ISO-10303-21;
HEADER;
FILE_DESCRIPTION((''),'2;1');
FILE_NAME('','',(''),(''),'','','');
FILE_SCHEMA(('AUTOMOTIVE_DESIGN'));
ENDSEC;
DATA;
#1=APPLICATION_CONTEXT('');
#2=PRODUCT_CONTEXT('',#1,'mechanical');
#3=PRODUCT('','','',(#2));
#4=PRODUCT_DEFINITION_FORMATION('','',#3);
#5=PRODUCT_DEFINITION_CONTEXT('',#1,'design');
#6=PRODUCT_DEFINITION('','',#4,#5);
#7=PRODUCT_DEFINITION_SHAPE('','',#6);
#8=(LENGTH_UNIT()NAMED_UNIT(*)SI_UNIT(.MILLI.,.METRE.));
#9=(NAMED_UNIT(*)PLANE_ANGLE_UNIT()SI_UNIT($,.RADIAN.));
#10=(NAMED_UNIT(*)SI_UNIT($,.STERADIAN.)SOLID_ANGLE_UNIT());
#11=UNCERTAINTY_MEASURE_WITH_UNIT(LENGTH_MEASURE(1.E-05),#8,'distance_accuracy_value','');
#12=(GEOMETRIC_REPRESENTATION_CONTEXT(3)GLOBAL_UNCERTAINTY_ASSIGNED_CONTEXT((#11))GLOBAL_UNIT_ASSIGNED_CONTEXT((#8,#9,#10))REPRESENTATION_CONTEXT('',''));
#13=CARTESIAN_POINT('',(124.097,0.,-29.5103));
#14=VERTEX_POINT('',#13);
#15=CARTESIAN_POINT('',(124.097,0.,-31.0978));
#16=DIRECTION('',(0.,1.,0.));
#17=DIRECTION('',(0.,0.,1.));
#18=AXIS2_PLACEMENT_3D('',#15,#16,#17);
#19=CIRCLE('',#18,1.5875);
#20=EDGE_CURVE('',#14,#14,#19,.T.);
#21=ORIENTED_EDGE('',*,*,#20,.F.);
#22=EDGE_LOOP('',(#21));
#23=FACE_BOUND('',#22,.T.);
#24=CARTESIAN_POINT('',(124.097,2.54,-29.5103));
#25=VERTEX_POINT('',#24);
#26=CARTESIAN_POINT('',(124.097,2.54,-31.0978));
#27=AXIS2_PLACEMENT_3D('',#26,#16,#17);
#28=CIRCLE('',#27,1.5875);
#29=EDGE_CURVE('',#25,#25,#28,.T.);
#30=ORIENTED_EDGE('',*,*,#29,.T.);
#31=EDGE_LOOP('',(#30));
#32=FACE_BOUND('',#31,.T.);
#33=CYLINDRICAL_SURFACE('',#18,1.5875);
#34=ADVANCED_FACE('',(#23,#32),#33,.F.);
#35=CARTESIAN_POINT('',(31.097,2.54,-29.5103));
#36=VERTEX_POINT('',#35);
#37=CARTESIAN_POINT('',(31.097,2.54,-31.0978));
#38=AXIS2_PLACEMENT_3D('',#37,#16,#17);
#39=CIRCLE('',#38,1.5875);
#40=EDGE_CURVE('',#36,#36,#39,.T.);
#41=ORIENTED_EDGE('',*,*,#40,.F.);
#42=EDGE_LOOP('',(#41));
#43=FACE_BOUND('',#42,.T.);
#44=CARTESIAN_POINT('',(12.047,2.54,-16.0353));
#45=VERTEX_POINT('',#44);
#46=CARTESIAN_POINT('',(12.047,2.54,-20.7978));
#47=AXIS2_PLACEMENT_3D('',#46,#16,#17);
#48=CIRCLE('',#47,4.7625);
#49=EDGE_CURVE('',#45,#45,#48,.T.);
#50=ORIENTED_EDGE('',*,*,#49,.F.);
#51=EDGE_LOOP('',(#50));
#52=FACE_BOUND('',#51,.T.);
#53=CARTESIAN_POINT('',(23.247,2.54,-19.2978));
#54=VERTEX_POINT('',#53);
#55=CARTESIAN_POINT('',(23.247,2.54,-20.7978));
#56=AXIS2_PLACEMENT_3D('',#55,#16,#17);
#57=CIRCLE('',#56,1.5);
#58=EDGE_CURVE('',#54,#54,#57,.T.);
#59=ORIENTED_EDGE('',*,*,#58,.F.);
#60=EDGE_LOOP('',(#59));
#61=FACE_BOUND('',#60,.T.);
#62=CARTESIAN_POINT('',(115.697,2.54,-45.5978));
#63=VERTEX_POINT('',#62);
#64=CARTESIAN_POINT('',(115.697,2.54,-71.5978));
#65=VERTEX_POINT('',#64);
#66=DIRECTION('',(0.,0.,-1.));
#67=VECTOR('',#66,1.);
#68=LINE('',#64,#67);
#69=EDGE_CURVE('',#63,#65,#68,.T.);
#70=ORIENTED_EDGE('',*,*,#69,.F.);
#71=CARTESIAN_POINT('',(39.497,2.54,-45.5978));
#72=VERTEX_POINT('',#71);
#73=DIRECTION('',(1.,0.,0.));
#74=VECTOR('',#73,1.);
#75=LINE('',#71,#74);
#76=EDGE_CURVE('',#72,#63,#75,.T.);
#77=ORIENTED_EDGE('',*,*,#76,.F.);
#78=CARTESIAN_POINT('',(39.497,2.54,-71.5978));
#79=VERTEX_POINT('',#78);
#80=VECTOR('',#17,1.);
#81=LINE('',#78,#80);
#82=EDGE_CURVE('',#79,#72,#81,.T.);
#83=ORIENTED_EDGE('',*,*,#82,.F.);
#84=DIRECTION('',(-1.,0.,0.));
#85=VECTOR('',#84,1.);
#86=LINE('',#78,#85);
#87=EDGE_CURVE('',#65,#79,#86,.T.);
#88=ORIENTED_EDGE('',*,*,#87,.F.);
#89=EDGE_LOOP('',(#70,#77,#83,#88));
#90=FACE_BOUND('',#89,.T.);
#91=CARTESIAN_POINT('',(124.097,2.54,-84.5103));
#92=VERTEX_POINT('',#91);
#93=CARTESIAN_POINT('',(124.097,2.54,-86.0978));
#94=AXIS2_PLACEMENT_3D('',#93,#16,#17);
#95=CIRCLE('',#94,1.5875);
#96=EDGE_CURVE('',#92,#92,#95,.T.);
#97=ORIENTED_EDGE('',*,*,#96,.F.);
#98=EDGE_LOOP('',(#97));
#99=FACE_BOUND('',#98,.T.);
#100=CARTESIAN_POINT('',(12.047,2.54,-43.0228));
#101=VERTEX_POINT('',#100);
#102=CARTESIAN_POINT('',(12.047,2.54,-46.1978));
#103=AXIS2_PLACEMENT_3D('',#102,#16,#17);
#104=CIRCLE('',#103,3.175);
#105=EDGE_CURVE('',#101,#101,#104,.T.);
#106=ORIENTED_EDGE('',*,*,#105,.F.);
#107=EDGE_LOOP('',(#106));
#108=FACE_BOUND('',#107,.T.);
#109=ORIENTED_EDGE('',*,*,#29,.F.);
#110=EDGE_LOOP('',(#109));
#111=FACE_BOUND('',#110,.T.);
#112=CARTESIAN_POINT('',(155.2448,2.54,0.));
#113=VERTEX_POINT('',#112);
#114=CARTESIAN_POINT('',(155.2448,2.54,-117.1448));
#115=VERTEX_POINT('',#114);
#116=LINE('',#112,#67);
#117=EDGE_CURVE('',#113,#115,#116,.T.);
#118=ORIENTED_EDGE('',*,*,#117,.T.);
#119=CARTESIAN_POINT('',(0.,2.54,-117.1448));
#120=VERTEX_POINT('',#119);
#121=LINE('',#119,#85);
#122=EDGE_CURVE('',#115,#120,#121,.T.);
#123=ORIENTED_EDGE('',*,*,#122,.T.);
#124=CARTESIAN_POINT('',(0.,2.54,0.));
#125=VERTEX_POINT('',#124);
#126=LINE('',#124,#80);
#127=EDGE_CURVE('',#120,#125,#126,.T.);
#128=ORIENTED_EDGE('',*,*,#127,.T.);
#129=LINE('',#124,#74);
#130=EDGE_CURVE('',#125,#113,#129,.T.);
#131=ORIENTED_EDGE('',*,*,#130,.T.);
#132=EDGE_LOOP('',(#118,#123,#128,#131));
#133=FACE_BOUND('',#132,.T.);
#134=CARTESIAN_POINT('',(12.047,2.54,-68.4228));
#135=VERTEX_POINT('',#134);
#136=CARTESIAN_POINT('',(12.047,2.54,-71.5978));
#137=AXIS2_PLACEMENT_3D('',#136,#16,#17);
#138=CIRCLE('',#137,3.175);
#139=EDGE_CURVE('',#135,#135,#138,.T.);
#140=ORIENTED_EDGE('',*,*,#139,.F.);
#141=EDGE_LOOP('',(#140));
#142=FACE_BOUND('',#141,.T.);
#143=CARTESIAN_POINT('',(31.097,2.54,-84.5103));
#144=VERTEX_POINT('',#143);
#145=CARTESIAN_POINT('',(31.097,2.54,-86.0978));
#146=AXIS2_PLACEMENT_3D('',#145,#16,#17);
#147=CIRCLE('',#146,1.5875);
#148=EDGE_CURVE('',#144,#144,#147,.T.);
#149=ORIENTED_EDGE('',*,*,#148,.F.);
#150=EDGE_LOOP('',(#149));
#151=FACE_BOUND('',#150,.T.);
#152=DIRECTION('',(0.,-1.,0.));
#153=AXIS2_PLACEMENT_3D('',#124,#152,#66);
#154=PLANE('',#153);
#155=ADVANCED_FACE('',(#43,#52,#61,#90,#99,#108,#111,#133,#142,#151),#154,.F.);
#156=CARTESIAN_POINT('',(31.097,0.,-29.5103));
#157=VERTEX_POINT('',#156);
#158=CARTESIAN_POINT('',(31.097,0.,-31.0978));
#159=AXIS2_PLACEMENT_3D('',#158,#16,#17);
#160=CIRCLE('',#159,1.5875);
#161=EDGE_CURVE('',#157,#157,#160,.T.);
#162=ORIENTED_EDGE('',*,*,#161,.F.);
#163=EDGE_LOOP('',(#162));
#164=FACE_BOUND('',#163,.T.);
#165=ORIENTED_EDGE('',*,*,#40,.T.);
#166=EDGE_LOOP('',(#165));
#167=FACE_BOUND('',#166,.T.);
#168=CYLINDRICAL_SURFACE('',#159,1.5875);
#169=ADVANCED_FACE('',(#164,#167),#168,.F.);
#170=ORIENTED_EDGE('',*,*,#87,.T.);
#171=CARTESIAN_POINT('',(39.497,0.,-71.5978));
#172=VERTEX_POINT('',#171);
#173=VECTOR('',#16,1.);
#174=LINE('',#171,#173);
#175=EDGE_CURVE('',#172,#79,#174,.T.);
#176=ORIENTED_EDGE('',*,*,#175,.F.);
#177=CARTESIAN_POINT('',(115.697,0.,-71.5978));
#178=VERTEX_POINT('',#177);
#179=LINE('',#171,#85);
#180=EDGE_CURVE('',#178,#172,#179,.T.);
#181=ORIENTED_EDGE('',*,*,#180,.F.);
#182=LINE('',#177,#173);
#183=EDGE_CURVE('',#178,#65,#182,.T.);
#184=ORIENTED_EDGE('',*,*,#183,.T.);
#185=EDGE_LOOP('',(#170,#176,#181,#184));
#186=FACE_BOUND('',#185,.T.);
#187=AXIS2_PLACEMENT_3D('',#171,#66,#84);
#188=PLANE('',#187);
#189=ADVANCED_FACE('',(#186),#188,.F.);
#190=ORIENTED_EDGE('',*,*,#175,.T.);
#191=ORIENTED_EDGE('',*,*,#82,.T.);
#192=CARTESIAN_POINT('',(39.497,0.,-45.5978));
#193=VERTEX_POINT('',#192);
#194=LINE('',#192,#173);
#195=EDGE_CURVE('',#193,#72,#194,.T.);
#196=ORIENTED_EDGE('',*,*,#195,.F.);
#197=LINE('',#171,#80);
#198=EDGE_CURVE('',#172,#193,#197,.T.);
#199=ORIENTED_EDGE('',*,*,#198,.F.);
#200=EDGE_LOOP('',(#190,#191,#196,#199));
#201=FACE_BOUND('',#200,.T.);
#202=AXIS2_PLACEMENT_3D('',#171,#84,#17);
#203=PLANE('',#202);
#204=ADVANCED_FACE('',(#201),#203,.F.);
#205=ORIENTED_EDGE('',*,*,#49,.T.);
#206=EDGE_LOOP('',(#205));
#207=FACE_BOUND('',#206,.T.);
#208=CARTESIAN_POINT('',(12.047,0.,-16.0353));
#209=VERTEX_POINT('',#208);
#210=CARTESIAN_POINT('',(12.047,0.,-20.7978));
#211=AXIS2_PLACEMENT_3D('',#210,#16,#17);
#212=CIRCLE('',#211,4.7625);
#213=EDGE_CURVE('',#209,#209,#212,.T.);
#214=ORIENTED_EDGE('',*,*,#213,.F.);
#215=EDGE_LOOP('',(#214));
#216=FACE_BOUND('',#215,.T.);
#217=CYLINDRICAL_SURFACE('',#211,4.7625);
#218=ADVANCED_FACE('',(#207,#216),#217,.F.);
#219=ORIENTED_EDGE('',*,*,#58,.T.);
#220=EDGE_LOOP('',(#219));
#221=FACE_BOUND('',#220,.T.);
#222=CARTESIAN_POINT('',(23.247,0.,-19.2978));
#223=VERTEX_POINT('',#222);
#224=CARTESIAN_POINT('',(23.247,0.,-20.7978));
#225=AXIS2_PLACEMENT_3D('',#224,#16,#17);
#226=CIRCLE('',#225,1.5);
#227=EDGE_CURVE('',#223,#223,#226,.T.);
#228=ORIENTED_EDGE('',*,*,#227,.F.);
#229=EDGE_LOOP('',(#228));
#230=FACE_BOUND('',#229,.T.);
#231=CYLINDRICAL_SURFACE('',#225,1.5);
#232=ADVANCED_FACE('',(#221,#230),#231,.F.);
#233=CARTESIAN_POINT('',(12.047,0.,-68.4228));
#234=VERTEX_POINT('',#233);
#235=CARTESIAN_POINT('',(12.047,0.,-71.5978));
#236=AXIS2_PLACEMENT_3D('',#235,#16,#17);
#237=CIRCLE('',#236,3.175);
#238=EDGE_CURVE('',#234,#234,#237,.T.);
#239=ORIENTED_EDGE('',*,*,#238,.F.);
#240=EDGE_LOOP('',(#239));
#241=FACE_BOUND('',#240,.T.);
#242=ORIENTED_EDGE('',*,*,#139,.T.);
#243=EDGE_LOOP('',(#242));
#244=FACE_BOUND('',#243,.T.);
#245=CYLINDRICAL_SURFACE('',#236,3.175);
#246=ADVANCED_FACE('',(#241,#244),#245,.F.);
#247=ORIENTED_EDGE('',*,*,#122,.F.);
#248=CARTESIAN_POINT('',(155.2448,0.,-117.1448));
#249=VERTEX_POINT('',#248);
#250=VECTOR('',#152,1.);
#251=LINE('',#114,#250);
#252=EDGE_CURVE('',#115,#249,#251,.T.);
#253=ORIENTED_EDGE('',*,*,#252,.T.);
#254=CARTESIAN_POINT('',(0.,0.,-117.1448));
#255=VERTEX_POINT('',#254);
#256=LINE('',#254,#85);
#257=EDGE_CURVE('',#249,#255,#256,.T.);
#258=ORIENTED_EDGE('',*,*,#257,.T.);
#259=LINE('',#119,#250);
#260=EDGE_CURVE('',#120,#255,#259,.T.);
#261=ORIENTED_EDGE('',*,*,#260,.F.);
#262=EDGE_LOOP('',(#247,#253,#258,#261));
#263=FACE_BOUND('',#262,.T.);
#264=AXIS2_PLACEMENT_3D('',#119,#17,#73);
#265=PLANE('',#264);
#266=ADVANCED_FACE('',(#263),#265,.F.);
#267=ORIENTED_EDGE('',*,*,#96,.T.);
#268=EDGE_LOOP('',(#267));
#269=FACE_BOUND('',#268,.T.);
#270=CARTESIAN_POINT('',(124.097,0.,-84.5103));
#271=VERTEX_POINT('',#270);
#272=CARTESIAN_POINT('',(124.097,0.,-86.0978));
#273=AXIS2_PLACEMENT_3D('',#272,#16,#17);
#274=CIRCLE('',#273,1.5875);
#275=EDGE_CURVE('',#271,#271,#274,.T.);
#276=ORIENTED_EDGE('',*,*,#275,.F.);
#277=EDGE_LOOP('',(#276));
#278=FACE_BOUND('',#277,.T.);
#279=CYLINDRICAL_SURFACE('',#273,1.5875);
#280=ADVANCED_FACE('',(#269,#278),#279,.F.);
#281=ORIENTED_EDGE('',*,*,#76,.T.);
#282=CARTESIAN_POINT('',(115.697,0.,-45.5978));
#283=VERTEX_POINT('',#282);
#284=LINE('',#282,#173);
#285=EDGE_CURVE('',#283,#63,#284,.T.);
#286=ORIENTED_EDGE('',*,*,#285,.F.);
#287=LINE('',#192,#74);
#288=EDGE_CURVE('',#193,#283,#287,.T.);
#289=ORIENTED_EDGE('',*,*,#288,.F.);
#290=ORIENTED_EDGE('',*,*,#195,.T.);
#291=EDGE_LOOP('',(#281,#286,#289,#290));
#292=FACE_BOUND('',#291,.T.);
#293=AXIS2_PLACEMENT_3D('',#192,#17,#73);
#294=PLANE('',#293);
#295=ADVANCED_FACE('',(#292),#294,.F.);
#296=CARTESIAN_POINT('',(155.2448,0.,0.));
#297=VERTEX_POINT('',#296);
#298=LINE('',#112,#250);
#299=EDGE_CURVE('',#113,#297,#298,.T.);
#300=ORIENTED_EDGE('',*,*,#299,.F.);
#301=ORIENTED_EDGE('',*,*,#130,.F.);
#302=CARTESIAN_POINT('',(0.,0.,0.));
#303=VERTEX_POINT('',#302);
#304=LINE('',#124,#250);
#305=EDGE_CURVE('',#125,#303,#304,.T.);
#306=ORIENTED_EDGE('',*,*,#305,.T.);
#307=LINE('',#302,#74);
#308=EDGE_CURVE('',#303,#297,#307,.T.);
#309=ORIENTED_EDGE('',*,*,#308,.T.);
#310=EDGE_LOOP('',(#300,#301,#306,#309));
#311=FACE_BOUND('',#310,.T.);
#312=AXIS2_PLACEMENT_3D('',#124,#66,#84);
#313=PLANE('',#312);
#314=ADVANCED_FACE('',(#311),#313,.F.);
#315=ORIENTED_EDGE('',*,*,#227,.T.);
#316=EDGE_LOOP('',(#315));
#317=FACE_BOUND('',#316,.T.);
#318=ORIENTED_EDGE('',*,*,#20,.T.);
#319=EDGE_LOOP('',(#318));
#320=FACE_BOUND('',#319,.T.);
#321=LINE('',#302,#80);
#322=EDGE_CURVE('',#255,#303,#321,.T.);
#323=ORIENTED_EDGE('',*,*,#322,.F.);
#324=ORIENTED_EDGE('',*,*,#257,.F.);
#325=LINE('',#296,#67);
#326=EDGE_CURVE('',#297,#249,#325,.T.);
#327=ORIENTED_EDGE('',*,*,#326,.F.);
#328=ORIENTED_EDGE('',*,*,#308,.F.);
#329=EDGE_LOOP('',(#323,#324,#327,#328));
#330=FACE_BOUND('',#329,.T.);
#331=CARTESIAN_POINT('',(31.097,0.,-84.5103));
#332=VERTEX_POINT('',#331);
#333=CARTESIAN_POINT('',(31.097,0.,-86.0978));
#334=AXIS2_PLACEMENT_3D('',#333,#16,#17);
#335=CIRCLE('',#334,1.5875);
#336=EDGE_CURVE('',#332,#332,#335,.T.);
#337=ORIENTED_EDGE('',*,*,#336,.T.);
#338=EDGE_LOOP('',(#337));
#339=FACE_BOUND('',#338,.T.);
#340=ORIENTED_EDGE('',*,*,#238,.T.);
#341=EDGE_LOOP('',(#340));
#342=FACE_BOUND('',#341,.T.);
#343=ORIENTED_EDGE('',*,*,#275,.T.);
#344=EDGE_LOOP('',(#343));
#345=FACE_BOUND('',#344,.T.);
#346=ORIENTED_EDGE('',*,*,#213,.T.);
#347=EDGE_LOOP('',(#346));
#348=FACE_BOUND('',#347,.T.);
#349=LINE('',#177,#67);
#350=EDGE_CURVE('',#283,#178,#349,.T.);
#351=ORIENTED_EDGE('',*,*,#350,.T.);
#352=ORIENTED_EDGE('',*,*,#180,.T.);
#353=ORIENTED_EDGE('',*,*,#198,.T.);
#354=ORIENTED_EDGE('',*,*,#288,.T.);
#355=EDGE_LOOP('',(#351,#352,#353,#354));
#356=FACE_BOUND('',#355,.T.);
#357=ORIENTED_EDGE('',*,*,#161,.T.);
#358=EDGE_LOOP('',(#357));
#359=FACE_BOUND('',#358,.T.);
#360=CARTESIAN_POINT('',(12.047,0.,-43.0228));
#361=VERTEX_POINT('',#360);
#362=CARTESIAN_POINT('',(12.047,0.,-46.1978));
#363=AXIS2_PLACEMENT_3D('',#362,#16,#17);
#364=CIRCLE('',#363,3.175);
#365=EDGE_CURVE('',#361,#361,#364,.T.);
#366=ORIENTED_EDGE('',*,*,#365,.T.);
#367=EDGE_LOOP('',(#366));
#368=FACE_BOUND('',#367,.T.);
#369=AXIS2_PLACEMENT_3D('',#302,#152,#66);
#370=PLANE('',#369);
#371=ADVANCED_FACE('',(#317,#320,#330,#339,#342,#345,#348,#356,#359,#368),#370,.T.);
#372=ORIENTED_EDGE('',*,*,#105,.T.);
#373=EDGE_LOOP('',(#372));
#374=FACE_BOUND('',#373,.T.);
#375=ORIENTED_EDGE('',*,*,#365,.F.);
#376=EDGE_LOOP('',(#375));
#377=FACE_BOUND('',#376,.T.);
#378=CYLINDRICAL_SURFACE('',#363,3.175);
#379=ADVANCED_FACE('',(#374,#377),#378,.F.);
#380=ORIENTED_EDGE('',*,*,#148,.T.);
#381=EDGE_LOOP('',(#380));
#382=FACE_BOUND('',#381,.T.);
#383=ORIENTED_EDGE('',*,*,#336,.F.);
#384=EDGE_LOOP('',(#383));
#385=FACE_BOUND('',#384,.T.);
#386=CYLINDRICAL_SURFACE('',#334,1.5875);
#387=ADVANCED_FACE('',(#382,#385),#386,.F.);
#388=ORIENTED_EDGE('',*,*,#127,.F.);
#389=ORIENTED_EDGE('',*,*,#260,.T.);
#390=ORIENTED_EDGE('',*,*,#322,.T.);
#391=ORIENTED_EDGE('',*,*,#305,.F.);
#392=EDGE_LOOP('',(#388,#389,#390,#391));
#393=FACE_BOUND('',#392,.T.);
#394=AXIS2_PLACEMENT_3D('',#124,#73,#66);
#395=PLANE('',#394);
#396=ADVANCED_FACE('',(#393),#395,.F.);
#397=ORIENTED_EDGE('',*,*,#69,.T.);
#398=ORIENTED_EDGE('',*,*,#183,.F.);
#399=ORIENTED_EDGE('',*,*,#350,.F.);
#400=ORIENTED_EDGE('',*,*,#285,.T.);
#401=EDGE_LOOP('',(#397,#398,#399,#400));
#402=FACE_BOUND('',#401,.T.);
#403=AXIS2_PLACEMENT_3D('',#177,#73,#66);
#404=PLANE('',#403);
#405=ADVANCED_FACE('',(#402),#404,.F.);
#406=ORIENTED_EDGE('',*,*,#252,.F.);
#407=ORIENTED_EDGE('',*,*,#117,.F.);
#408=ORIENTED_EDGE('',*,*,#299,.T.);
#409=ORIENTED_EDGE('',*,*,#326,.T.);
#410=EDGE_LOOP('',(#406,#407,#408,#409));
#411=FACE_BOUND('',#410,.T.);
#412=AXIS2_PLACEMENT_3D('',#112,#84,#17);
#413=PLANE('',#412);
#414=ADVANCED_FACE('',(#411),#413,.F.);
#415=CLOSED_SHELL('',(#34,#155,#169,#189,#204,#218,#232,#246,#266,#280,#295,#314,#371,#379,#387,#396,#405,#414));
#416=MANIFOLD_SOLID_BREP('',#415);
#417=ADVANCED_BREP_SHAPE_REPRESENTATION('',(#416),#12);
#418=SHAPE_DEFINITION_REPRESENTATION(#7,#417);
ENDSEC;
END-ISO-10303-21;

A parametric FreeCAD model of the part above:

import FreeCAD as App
import Part
import Sketcher
from FreeCAD import Vector
Q = App.Units.Quantity

doc = App.newDocument("Part")
body = doc.addObject("PartDesign::Body", "Body")

# Sketch on XZ plane
sketch1 = doc.addObject("Sketcher::SketchObject", "Sketch")
body.addObject(sketch1)
sketch1.AttachmentSupport = (doc.XZ_Plane, [""])
sketch1.MapMode = "FlatFace"
sketch1.addGeometry([
    Part.LineSegment(Vector(0, -117, 0), Vector(0, 0, 0)),
    Part.LineSegment(Vector(0, 0, 0), Vector(155, 0, 0)),
    Part.LineSegment(Vector(155, 0, 0), Vector(155, -117, 0)),
    Part.LineSegment(Vector(155, -117, 0), Vector(0, -117, 0)),
], False)
sketch1.addConstraint([
    Sketcher.Constraint("Coincident", 0, 2, 1, 1),
    Sketcher.Constraint("Coincident", 1, 2, 2, 1),
    Sketcher.Constraint("Coincident", 2, 2, 3, 1),
    Sketcher.Constraint("Coincident", 3, 2, 0, 1),
    Sketcher.Constraint("Vertical", 0),
    Sketcher.Constraint("Horizontal", 1),
    Sketcher.Constraint("Vertical", 2),
    Sketcher.Constraint("Horizontal", 3),
    Sketcher.Constraint("Coincident", 0, 2, -1, 1),
    Sketcher.Constraint("DistanceX", 1, 1, 1, 2, Q("6.112 in")),
    Sketcher.Constraint("DistanceY", 0, 1, 0, 2, Q("4.612 in")),
])
pad1 = doc.addObject("PartDesign::Pad", "Pad")
body.addObject(pad1)
pad1.Profile = sketch1
pad1.Length = Q("0.1 in")
pad1.Reversed = True

# Sketch on XZ plane
sketch2 = doc.addObject("Sketcher::SketchObject", "Sketch001")
body.addObject(sketch2)
sketch2.AttachmentSupport = (doc.XZ_Plane, [""])
sketch2.MapMode = "FlatFace"
sketch2.AttachmentOffset = App.Placement(Vector(0, 0, -0.1 * 25.4), App.Rotation())
sketch2.addGeometry([
    Part.Circle(Vector(31.1, -86.1, 0), Vector(0, 0, 1), 1.6),  # 0
    Part.Circle(Vector(31.1, -31.1, 0), Vector(0, 0, 1), 1.6),  # 1
    Part.Circle(Vector(124.1, -86.1, 0), Vector(0, 0, 1), 1.6),  # 2
    Part.Circle(Vector(124.1, -31.1, 0), Vector(0, 0, 1), 1.6),  # 3
    Part.Circle(Vector(12, -71.6, 0), Vector(0, 0, 1), 3.2),  # 4
    Part.Circle(Vector(12, -46.2, 0), Vector(0, 0, 1), 3.2),  # 5
    Part.Circle(Vector(12, -20.8, 0), Vector(0, 0, 1), 4.8),  # 6
    Part.Circle(Vector(23.2, -20.8, 0), Vector(0, 0, 1), 1.5),  # 7
    Part.LineSegment(Vector(39.5, -71.6, 0), Vector(39.5, -45.6, 0)),  # 8
    Part.LineSegment(Vector(39.5, -45.6, 0), Vector(115.7, -45.6, 0)),  # 9
    Part.LineSegment(Vector(115.7, -45.6, 0), Vector(115.7, -71.6, 0)),  # 10
    Part.LineSegment(Vector(115.7, -71.6, 0), Vector(39.5, -71.6, 0)),  # 11
], False)
sketch2.addConstraint([
    Sketcher.Constraint("Coincident", 8, 2, 9, 1),
    Sketcher.Constraint("Coincident", 9, 2, 10, 1),
    Sketcher.Constraint("Coincident", 10, 2, 11, 1),
    Sketcher.Constraint("Coincident", 11, 2, 8, 1),
    Sketcher.Constraint("Vertical", 8),
    Sketcher.Constraint("Horizontal", 9),
    Sketcher.Constraint("Vertical", 10),
    Sketcher.Constraint("Horizontal", 11),
    Sketcher.Constraint("Equal", 0, 1),
    Sketcher.Constraint("Equal", 1, 2),
    Sketcher.Constraint("Equal", 2, 3),
    Sketcher.Constraint("Equal", 4, 5),
    Sketcher.Constraint("Horizontal", 0, 3, 2, 3),
    Sketcher.Constraint("Horizontal", 1, 3, 3, 3),
    Sketcher.Constraint("Horizontal", 6, 3, 7, 3),
    Sketcher.Constraint("Horizontal", 4, 3, 10, 2),
    Sketcher.Constraint("Vertical", 0, 3, 1, 3),
    Sketcher.Constraint("Vertical", 2, 3, 3, 3),
    Sketcher.Constraint("Vertical", 4, 3, 5, 3),
    Sketcher.Constraint("Vertical", 5, 3, 6, 3),
    Sketcher.Constraint("Diameter", 4, Q("0.25 in")),
    Sketcher.Constraint("DistanceX", 9, 1, 9, 2, Q("3 in")),
    Sketcher.Constraint("Diameter", 0, Q("0.125 in")),
    Sketcher.Constraint("Diameter", 6, Q("0.375 in")),
    Sketcher.Constraint("DistanceY", 4, 3, 5, 3, Q("1 in")),
    Sketcher.Constraint("DistanceY", 5, 3, 6, 3, Q("1 in")),
    Sketcher.Constraint("Diameter", 7, 3.0),
    Sketcher.Constraint("DistanceX", 4, 3, 0, 3, Q("0.75 in")),
    Sketcher.Constraint("DistanceX", -1, 1, 8, 2, Q("1.555 in")),
    Sketcher.Constraint("DistanceY", 8, 1, 8, 2, 26.0),
    Sketcher.Constraint("DistanceX", -1, 1, 0, 3, 31.097),
    Sketcher.Constraint("DistanceY", 0, 3, -1, 1, 86.0978),
    Sketcher.Constraint("DistanceY", 1, 3, -1, 1, 31.0978),
    Sketcher.Constraint("DistanceX", -1, 1, 2, 3, 124.097),
    Sketcher.Constraint("DistanceY", 4, 3, -1, 1, 71.5978),
    Sketcher.Constraint("DistanceX", -1, 1, 7, 3, 23.247),
])
pocket1 = doc.addObject("PartDesign::Pocket", "Pocket")
body.addObject(pocket1)
pocket1.Profile = sketch2
pocket1.Length = Q("0.1 in")
pocket1.Reversed = True

doc.recompute()
